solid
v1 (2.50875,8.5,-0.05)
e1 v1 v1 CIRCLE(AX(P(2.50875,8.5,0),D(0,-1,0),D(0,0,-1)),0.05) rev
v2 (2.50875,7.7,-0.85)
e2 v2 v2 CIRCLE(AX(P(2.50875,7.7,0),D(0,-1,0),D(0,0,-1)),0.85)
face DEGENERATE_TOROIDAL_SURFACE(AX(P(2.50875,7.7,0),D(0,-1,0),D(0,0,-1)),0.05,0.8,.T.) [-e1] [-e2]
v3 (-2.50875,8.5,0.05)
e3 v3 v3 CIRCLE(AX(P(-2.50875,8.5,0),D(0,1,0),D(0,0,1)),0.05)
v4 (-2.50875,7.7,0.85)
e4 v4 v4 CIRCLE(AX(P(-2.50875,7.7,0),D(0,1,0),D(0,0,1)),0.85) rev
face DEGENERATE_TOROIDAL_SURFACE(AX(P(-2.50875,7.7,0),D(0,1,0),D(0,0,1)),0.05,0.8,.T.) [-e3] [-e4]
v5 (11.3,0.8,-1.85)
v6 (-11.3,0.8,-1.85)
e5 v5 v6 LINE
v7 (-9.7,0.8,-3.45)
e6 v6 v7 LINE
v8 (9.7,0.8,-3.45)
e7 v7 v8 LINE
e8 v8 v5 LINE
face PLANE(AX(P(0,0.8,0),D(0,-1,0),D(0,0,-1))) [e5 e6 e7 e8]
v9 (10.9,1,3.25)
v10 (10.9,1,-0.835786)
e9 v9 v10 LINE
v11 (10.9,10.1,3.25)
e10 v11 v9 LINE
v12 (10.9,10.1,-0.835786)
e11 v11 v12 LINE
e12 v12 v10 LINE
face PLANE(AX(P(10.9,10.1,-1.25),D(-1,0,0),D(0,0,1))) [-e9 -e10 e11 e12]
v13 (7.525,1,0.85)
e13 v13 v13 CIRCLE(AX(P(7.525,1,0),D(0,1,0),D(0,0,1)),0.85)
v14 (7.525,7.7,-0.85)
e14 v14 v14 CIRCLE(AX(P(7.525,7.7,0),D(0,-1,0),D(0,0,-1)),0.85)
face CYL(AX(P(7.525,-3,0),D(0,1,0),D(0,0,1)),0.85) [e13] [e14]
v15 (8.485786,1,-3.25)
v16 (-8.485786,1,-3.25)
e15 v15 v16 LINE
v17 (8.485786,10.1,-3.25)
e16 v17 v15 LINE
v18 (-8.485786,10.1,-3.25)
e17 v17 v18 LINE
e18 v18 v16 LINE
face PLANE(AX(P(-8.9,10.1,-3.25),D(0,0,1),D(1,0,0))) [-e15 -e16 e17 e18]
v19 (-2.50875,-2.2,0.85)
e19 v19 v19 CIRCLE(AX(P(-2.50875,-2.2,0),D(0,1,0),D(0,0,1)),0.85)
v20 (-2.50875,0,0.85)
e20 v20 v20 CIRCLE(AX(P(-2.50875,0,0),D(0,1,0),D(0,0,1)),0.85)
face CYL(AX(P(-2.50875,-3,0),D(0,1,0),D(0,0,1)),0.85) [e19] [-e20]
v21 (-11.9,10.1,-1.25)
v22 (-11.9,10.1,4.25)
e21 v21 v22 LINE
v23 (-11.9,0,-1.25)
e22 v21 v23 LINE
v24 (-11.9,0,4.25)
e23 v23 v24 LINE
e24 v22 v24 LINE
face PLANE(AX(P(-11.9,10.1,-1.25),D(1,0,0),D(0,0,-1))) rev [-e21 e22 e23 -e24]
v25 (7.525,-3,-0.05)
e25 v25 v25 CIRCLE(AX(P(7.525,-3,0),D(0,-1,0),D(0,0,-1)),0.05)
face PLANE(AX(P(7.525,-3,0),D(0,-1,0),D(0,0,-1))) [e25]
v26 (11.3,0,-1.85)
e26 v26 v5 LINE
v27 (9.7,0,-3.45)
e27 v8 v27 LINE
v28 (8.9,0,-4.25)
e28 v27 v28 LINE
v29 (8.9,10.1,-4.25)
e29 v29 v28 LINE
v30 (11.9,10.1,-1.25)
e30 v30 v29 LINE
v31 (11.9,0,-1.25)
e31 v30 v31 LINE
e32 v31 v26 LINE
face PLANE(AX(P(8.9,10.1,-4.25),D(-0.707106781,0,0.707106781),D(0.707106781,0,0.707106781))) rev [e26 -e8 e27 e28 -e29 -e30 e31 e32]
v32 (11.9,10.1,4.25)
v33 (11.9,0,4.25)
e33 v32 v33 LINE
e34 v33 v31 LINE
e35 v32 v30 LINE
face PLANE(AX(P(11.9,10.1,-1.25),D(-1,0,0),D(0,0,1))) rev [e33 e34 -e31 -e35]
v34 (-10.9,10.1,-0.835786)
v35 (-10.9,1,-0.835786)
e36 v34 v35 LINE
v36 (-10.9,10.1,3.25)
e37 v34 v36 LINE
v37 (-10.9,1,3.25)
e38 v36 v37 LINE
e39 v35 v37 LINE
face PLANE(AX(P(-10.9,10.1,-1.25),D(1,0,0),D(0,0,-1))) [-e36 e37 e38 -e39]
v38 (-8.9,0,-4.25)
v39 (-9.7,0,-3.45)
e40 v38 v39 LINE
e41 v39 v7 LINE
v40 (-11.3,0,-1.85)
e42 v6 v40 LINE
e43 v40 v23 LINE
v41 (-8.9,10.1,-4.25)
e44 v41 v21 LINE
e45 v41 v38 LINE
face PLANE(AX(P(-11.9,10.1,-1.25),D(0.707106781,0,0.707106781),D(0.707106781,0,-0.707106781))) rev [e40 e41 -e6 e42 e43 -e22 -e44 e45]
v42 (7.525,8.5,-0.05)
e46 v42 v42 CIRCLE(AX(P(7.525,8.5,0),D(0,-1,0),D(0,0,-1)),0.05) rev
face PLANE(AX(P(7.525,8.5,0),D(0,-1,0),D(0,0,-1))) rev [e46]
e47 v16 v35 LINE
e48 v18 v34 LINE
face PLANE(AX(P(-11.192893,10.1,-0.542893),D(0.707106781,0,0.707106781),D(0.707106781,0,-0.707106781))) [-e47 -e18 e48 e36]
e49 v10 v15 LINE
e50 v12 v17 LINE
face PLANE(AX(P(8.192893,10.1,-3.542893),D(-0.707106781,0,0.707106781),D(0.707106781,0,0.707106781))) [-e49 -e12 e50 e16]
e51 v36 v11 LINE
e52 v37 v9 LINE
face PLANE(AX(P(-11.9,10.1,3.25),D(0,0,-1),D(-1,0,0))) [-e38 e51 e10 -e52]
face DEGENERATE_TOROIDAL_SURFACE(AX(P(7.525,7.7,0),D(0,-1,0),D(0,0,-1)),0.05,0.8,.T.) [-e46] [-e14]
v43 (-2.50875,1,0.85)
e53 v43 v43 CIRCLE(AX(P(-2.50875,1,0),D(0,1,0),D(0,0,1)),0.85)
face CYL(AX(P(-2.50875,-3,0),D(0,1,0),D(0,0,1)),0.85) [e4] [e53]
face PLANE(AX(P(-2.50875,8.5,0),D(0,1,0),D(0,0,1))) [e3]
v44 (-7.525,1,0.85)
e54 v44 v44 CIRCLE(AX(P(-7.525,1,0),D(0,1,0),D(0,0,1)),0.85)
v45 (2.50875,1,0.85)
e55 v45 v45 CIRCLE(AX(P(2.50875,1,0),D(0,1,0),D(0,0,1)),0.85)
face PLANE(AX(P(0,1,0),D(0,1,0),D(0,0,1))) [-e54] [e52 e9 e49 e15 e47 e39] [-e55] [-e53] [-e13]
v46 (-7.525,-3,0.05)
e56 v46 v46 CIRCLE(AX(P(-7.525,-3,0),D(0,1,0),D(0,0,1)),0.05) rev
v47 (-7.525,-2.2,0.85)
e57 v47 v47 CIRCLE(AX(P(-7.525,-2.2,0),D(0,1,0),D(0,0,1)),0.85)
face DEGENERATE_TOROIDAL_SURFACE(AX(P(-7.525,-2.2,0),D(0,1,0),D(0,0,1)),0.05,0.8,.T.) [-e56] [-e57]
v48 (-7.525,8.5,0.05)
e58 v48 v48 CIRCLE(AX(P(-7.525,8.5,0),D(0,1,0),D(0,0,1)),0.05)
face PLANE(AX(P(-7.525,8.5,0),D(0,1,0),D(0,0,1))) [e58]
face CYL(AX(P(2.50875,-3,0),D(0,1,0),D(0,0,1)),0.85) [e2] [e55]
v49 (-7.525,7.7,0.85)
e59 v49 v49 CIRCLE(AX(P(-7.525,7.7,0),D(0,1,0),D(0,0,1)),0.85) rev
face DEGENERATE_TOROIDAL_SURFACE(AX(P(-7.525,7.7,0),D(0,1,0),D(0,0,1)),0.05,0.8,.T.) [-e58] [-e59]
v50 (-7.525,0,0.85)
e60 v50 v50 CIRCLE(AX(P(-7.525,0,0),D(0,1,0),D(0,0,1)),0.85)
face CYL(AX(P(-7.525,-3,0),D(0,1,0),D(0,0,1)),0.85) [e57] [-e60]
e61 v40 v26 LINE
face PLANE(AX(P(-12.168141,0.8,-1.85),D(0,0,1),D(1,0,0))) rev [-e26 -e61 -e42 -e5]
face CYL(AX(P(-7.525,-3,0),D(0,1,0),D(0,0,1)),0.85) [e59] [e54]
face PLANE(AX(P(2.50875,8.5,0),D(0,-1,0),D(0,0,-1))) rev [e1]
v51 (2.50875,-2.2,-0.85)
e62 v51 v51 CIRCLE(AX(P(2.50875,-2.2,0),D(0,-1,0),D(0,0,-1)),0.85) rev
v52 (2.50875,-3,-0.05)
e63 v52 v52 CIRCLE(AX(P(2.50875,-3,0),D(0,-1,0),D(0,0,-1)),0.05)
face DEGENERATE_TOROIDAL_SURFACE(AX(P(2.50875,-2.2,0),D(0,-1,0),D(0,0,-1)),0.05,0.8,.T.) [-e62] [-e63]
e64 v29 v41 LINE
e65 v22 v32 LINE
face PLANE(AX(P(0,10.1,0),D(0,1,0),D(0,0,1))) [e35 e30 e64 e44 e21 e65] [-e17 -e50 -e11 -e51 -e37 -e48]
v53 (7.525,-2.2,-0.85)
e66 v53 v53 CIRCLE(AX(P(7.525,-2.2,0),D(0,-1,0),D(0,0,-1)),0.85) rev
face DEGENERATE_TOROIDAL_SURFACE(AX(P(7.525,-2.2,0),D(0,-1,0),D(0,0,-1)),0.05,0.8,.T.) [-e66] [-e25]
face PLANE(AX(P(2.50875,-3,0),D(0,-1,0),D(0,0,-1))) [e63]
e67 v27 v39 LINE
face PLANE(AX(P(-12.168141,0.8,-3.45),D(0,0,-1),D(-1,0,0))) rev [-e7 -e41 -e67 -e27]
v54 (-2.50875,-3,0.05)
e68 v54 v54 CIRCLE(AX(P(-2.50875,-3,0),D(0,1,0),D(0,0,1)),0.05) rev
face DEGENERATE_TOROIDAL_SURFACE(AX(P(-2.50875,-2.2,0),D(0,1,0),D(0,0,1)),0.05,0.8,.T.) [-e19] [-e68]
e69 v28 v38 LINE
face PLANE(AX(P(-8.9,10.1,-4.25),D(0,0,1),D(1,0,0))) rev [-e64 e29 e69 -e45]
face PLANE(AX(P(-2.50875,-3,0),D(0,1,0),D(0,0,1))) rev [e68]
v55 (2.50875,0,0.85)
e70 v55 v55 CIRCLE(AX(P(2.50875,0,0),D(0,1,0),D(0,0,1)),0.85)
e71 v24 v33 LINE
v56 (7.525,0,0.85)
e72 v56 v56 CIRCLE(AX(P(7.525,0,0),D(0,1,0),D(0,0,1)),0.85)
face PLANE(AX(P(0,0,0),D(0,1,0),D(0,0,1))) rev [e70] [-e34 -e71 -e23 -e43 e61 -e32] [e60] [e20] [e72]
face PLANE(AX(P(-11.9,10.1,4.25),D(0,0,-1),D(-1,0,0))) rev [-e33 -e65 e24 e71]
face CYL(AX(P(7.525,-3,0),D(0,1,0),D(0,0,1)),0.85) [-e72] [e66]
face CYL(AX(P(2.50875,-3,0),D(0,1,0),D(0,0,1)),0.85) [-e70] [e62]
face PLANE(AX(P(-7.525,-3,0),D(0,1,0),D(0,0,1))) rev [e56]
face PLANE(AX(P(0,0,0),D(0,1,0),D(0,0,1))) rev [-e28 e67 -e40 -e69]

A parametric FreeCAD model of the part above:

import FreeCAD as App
import Part
import Sketcher
from FreeCAD import Vector


def edges_at(feature, points):
    """Names of the edges that pass closest to the given points."""
    edges = feature.Shape.Edges
    near = lambda p: min(range(len(edges)), key=lambda i: edges[i].distToShape(Part.Vertex(*p))[0])
    return sorted({f"Edge{near(p) + 1}" for p in points})


def faces_at(feature, points):
    """Names of the faces that lie closest to the given points."""
    faces = feature.Shape.Faces
    near = lambda p: min(range(len(faces)), key=lambda i: faces[i].distToShape(Part.Vertex(*p))[0])
    return sorted({f"Face{near(p) + 1}" for p in points})

doc = App.newDocument("Part")
body = doc.addObject("PartDesign::Body", "Body")

# Sketch on XZ plane
sketch1 = body.newObject("Sketcher::SketchObject", "Sketch")
sketch1.AttachmentSupport = (doc.getObject("XZ_Plane"), [""])
sketch1.MapMode = "FlatFace"
sketch1.addGeometry([
    Part.LineSegment(Vector(-8.9, -4.2, 0), Vector(-11.9, -1.2, 0)),  # 0
    Part.LineSegment(Vector(-11.9, -1.2, 0), Vector(-11.9, 4.2, 0)),  # 1
    Part.LineSegment(Vector(-11.9, 4.2, 0), Vector(11.9, 4.2, 0)),  # 2
    Part.LineSegment(Vector(11.9, 4.2, 0), Vector(11.9, -1.2, 0)),  # 3
    Part.LineSegment(Vector(11.9, -1.2, 0), Vector(8.9, -4.2, 0)),  # 4
    Part.LineSegment(Vector(8.9, -4.2, 0), Vector(-8.9, -4.2, 0)),  # 5
], False)
sketch1.addConstraint([
    Sketcher.Constraint("Coincident", 0, 2, 1, 1),
    Sketcher.Constraint("Coincident", 1, 2, 2, 1),
    Sketcher.Constraint("Coincident", 2, 2, 3, 1),
    Sketcher.Constraint("Coincident", 3, 2, 4, 1),
    Sketcher.Constraint("Coincident", 4, 2, 5, 1),
    Sketcher.Constraint("Coincident", 5, 2, 0, 1),
    Sketcher.Constraint("Vertical", 1),
    Sketcher.Constraint("Horizontal", 2),
    Sketcher.Constraint("Vertical", 3),
    Sketcher.Constraint("Horizontal", 5),
    Sketcher.Constraint("Symmetric", 0, 2, 3, 2, -2),
    Sketcher.Constraint("Perpendicular", 0, 4),
    Sketcher.Constraint("Equal", 0, 4),
    Sketcher.Constraint("DistanceX", 2, 1, 2, 2, 23.8),
    Sketcher.Constraint("DistanceX", 5, 2, 5, 1, 17.8),
    Sketcher.Constraint("DistanceY", 1, 1, 1, 2, 5.5),
    Sketcher.Constraint("DistanceY", 0, 2, -1, 1, 1.25),
])
pad1 = body.newObject("PartDesign::Pad", "Pad")
pad1.Profile = sketch1
pad1.Length = 10.1
pad1.Reversed = True
doc.recompute()

thickness = body.newObject("PartDesign::Thickness", "Thickness")
thickness.Base = (pad1, faces_at(pad1, [(0, 10.1, 0)]))
thickness.Value = 1
thickness.Reversed = True
thickness.Join = "Intersection"

# Sketch on XZ plane
sketch2 = body.newObject("Sketcher::SketchObject", "Sketch001")
sketch2.AttachmentSupport = (doc.getObject("XZ_Plane"), [""])
sketch2.MapMode = "FlatFace"
sketch2.AttachmentOffset = App.Placement(Vector(0, 0, -1), App.Rotation())
sketch2.addGeometry([
    Part.Circle(Vector(-7.5, 0, 0), Vector(0, 0, 1), 0.8),
    Part.Circle(Vector(-2.5, 0, 0), Vector(0, 0, 1), 0.8),
    Part.Circle(Vector(7.5, 0, 0), Vector(0, 0, 1), 0.8),
    Part.Circle(Vector(2.5, 0, 0), Vector(0, 0, 1), 0.8),
], False)
sketch2.addConstraint([
    Sketcher.Constraint("Equal", 0, 1),
    Sketcher.Constraint("Equal", 1, 2),
    Sketcher.Constraint("Equal", 2, 3),
    Sketcher.Constraint("Symmetric", 0, 3, 2, 3, -1, 1),
    Sketcher.Constraint("Symmetric", 1, 3, 3, 3, -1, 1),
    Sketcher.Constraint("PointOnObject", 0, 3, -1),
    Sketcher.Constraint("PointOnObject", 1, 3, -1),
    Sketcher.Constraint("Diameter", 0, 1.7),
    Sketcher.Constraint("DistanceX", 0, 3, 2, 3, 15.05),
    Sketcher.Constraint("DistanceX", 1, 3, 3, 3, 5.0175),
])
pad2 = body.newObject("PartDesign::Pad", "Pad001")
pad2.Profile = sketch2
pad2.Type = "TwoLengths"
pad2.Length = 7.5
pad2.Length2 = 4
pad2.Reversed = True
doc.recompute()

fillet = body.newObject("PartDesign::Fillet", "Fillet")
fillet.Base = (pad2, edges_at(pad2, [
    (-7.525, -3, -0.85),
    (-7.525, 8.5, -0.85),
    (-2.509, -3, -0.85),
    (-2.509, 8.5, -0.85),
    (7.525, -3, -0.85),
    (7.525, 8.5, -0.85),
    (2.509, -3, -0.85),
    (2.509, 8.5, -0.85),
]))
fillet.Radius = 0.8

# Sketch on XZ plane
sketch3 = body.newObject("Sketcher::SketchObject", "Sketch002")
sketch3.AttachmentSupport = (doc.getObject("XZ_Plane"), [""])
sketch3.MapMode = "FlatFace"
sketch3.addGeometry([
    Part.LineSegment(Vector(-12.2, -1.9, 0), Vector(-12.2, -3.5, 0)),
    Part.LineSegment(Vector(-12.2, -3.5, 0), Vector(14.5, -3.5, 0)),
    Part.LineSegment(Vector(14.5, -3.5, 0), Vector(14.5, -1.9, 0)),
    Part.LineSegment(Vector(14.5, -1.9, 0), Vector(-12.2, -1.9, 0)),
], False)
sketch3.addConstraint([
    Sketcher.Constraint("Coincident", 0, 2, 1, 1),
    Sketcher.Constraint("Coincident", 1, 2, 2, 1),
    Sketcher.Constraint("Coincident", 2, 2, 3, 1),
    Sketcher.Constraint("Coincident", 3, 2, 0, 1),
    Sketcher.Constraint("Vertical", 0),
    Sketcher.Constraint("Horizontal", 1),
    Sketcher.Constraint("Vertical", 2),
    Sketcher.Constraint("Horizontal", 3),
    Sketcher.Constraint("DistanceY", 0, 2, 0, 1, 1.6),
    Sketcher.Constraint("DistanceY", 0, 2, -1, 1, 3.45),
    Sketcher.Constraint("DistanceX", 1, 1, 1, 2, 26.621777),
    Sketcher.Constraint("DistanceX", 0, 2, -1, 1, 12.168141),
])
pocket1 = body.newObject("PartDesign::Pocket", "Pocket")
pocket1.Profile = sketch3
pocket1.Length = 0.8

doc.recompute()
